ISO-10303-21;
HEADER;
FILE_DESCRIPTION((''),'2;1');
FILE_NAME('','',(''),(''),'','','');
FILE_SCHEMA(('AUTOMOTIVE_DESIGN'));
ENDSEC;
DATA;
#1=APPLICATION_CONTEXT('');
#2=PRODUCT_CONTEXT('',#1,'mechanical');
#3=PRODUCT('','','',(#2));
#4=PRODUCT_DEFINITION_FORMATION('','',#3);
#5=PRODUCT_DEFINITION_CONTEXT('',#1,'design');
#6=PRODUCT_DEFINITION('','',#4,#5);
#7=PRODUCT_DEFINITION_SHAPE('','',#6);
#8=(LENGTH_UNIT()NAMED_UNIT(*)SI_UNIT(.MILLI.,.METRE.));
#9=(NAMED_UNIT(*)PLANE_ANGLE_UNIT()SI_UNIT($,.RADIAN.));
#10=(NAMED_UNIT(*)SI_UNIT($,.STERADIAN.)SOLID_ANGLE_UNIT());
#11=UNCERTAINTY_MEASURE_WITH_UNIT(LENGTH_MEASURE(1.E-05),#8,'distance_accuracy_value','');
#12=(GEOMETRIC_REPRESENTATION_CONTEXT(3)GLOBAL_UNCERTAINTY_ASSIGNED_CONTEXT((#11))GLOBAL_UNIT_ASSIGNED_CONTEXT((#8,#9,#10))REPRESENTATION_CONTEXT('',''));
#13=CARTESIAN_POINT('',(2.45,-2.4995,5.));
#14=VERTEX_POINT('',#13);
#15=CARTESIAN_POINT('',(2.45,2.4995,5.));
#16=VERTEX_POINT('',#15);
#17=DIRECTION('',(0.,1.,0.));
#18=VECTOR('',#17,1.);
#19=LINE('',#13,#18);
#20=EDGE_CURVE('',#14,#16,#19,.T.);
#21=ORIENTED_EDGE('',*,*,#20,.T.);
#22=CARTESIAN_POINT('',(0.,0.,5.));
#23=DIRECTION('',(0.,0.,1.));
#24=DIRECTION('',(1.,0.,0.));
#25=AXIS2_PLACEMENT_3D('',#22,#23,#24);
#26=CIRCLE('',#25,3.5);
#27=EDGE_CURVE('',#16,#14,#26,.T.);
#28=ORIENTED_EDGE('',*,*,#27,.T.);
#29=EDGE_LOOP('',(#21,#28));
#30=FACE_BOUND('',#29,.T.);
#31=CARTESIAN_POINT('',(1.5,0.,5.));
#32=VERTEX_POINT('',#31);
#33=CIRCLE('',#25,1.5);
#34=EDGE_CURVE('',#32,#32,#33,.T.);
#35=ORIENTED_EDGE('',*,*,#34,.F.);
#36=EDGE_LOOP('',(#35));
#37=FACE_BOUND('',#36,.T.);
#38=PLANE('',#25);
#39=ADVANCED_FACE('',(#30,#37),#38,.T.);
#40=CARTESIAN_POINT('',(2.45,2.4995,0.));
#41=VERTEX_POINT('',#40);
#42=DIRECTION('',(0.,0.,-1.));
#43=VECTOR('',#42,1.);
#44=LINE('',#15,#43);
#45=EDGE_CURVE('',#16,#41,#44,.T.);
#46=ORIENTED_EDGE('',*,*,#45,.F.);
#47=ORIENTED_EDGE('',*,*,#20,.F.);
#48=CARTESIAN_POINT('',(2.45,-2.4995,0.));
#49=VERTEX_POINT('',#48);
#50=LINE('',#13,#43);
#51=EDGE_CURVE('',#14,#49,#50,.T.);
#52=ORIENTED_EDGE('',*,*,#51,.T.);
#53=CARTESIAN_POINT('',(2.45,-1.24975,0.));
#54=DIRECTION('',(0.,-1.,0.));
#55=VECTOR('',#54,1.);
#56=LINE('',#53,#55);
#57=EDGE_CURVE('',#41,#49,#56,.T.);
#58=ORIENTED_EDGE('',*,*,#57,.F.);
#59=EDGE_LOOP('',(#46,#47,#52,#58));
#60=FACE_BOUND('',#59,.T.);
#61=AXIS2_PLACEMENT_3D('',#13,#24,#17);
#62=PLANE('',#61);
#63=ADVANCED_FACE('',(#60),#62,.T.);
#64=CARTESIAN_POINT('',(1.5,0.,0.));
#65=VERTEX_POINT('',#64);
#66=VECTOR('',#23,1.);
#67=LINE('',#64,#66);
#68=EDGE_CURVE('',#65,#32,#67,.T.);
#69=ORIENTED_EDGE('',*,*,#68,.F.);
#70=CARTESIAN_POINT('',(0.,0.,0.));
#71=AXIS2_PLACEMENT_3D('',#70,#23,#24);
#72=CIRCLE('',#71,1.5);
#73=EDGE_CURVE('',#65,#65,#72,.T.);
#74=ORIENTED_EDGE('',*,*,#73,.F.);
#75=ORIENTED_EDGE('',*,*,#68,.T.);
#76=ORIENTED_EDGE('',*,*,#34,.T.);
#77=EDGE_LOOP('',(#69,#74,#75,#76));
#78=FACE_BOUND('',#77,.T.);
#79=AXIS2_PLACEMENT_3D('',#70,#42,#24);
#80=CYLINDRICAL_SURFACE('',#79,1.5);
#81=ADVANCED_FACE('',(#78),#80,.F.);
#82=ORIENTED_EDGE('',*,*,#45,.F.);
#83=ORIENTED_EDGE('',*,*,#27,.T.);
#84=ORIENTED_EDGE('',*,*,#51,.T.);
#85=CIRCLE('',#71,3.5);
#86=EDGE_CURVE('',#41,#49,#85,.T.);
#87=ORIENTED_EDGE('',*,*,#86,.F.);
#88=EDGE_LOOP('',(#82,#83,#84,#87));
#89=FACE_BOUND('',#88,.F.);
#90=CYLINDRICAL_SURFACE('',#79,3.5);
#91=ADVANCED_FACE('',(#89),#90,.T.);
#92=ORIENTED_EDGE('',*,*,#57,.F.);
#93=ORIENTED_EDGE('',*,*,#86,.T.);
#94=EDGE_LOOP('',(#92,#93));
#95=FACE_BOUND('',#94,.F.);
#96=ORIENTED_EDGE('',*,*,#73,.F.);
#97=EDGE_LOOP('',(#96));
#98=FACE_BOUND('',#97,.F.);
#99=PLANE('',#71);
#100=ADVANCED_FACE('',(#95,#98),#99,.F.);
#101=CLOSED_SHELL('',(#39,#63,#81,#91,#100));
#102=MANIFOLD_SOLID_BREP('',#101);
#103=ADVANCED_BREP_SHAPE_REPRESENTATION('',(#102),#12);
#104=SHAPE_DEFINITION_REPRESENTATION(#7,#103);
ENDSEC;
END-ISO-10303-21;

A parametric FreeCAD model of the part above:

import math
import FreeCAD as App
import Part
import Sketcher
from FreeCAD import Vector

doc = App.newDocument("Part")
params = doc.addObject("Spreadsheet::Sheet", "Params")
for row, (alias, value) in enumerate([
    ("sketch1_diameter", "7 mm"),
    ("sketch1_diameter2", "3 mm"),
    ("pad1_length", "5 mm"),
    ("sketch2_radius", "3.5 mm"),
], start=1):
    params.set(f"A{row}", alias)
    params.set(f"B{row}", "=" + value)
    params.setAlias(f"B{row}", alias)

body = doc.addObject("PartDesign::Body", "Body")

sketch1 = body.newObject("Sketcher::SketchObject", "Sketch")
sketch1.AttachmentSupport = (doc.getObject("XY_Plane"), [""])
sketch1.MapMode = "FlatFace"
sketch1.addGeometry([
    Part.Circle(Vector(0, 0, 0), Vector(0, 0, 1), 3.5),
    Part.Circle(Vector(0, 0, 0), Vector(0, 0, 1), 1.5),
], False)
sketch1.addConstraint([
    Sketcher.Constraint("Coincident", 0, 3, -1, 1),
    Sketcher.Constraint("Coincident", 1, 3, -1, 1),
    Sketcher.Constraint("Diameter", 0, 7.0),
    Sketcher.Constraint("Diameter", 1, 3.0),
])
sketch1.setExpression("Constraints[2]", "Params.sketch1_diameter")
sketch1.setExpression("Constraints[3]", "Params.sketch1_diameter2")
pad1 = body.newObject("PartDesign::Pad", "Pad")
pad1.Profile = sketch1
pad1.setExpression("Length", "Params.pad1_length")

sketch2 = body.newObject("Sketcher::SketchObject", "Sketch001")
sketch2.AttachmentSupport = (doc.getObject("XY_Plane"), [""])
sketch2.MapMode = "FlatFace"
sketch2.AttachmentOffset = App.Placement(Vector(0, 0, 5), App.Rotation())
sketch2.addGeometry([
    Part.LineSegment(Vector(2.5, 2.5, 0), Vector(2.5, -2.5, 0)),
    Part.ArcOfCircle(Part.Circle(Vector(0, 0, 0), Vector(0, 0, 1), 3.5), math.radians(-46), math.radians(46)),
], False)
sketch2.addConstraint([
    Sketcher.Constraint("Coincident", 0, 1, 1, 2),
    Sketcher.Constraint("Coincident", 1, 1, 0, 2),
    Sketcher.Constraint("Vertical", 0),
    Sketcher.Constraint("Coincident", 1, 3, -1, 1),
    Sketcher.Constraint("Radius", 1, 3.5),
    Sketcher.Constraint("DistanceY", 0, 2, 0, 1, 4.999),
])
sketch2.setExpression("Constraints[4]", "Params.sketch2_radius")
pocket1 = body.newObject("PartDesign::Pocket", "Pocket")
pocket1.Profile = sketch2
pocket1.Type = "UpToFirst"

doc.recompute()
